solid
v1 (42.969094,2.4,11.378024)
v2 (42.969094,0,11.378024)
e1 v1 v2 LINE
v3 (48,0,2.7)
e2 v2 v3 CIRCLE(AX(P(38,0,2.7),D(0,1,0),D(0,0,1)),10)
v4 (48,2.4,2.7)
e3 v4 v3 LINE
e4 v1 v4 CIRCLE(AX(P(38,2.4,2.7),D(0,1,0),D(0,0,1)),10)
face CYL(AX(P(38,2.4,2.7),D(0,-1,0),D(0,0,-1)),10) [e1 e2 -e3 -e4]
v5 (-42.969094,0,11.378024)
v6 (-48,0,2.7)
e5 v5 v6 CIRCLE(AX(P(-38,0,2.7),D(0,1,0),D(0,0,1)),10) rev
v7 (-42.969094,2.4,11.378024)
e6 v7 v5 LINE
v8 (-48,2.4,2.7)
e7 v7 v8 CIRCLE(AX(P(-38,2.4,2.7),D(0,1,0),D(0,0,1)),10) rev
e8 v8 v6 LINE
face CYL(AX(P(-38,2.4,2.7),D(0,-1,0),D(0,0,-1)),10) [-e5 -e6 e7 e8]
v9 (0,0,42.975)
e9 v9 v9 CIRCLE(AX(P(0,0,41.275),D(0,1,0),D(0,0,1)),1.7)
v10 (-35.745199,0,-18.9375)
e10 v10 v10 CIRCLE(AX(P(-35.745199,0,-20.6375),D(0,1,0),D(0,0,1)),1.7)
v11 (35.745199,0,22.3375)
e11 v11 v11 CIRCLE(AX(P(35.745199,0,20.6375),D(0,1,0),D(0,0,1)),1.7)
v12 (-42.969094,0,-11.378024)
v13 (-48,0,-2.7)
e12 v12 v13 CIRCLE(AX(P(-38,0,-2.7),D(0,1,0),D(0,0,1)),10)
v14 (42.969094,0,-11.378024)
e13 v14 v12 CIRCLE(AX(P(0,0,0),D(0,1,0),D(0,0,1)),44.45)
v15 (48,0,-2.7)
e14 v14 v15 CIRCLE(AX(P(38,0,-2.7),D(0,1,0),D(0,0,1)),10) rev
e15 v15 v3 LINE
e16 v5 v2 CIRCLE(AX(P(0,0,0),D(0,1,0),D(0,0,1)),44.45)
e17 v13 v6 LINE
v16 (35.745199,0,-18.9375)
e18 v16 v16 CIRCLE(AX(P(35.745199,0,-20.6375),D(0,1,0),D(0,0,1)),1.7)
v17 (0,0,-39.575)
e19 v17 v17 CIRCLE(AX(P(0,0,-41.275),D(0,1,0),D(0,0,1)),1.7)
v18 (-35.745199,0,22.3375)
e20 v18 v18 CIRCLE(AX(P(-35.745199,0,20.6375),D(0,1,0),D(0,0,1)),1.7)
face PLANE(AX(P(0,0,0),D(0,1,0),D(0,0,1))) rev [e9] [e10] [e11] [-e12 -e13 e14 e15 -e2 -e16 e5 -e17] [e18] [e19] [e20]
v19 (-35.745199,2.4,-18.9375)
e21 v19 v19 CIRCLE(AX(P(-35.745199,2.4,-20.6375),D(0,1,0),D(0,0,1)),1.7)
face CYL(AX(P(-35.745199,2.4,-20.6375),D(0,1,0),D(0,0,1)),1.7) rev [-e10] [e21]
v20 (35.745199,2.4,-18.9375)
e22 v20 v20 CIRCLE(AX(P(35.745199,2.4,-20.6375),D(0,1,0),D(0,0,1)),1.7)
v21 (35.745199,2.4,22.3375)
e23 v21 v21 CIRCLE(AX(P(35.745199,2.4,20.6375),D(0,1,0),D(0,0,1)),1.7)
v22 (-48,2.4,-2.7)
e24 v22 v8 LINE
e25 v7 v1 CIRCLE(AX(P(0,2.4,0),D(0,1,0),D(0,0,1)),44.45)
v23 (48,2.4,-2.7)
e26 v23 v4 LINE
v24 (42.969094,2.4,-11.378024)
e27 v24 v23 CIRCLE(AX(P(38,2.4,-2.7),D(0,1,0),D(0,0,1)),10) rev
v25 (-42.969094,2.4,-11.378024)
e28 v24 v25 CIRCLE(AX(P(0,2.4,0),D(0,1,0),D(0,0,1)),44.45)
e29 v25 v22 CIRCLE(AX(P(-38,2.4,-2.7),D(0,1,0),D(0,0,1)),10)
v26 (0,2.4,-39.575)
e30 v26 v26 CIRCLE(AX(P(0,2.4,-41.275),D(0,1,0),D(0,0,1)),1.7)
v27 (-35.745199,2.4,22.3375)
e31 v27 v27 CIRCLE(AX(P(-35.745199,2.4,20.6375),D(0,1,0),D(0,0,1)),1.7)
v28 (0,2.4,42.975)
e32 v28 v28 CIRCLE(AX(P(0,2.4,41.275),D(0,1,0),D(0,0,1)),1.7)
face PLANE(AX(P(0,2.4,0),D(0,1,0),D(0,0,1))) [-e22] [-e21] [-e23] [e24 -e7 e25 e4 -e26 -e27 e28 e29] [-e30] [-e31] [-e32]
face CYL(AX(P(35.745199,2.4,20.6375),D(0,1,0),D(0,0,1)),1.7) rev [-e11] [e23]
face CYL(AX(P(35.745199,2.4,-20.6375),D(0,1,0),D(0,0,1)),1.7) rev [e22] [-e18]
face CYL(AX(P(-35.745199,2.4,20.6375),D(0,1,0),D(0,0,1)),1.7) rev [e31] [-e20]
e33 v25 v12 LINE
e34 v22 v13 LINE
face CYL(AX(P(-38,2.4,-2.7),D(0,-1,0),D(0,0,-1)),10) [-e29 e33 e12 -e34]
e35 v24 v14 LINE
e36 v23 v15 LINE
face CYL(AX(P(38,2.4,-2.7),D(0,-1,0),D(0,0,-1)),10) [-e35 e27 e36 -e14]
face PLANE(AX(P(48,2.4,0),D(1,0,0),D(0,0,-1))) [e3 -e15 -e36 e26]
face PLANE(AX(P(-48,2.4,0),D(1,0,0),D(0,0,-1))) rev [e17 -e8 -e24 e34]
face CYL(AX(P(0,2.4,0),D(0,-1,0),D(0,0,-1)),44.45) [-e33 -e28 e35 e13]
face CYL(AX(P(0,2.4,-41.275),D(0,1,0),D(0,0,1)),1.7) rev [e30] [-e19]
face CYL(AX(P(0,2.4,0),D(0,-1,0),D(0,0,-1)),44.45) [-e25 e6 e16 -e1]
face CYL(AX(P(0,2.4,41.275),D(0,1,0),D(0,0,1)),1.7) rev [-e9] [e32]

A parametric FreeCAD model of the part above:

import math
import FreeCAD as App
import Part
import Sketcher
from FreeCAD import Vector

doc = App.newDocument("Part")
body = doc.addObject("PartDesign::Body", "Body")

# Sketch on XZ plane
sketch1 = doc.addObject("Sketcher::SketchObject", "Sketch")
body.addObject(sketch1)
sketch1.AttachmentSupport = (doc.XZ_Plane, [""])
sketch1.MapMode = "FlatFace"
sketch1.addGeometry([
    Part.ArcOfCircle(Part.Circle(Vector(-38, -3, 0), Vector(0, 0, 1), 10), math.radians(180), math.radians(240)),  # 0
    Part.LineSegment(Vector(-48, -3, 0), Vector(-48, 3, 0)),  # 1
    Part.ArcOfCircle(Part.Circle(Vector(-38, 3, 0), Vector(0, 0, 1), 10), math.radians(120), math.radians(180)),  # 2
    Part.ArcOfCircle(Part.Circle(Vector(0, 0, 0), Vector(0, 0, 1), 44), math.radians(15), math.radians(165)),  # 3
    Part.ArcOfCircle(Part.Circle(Vector(38, 3, 0), Vector(0, 0, 1), 10), math.radians(0), math.radians(60)),  # 4
    Part.LineSegment(Vector(48, 3, 0), Vector(48, -3, 0)),  # 5
    Part.ArcOfCircle(Part.Circle(Vector(38, -3, 0), Vector(0, 0, 1), 10), math.radians(-60), math.radians(0)),  # 6
    Part.ArcOfCircle(Part.Circle(Vector(0, 0, 0), Vector(0, 0, 1), 44), math.radians(-165), math.radians(-15)),  # 7
], False)
sketch1.addConstraint([
    Sketcher.Constraint("Tangent", 0, 1, 1, 1),
    Sketcher.Constraint("Tangent", 1, 2, 2, 2),
    Sketcher.Constraint("Coincident", 2, 1, 3, 2),
    Sketcher.Constraint("Coincident", 3, 1, 4, 2),
    Sketcher.Constraint("Tangent", 4, 1, 5, 1),
    Sketcher.Constraint("Tangent", 5, 2, 6, 2),
    Sketcher.Constraint("Coincident", 6, 1, 7, 2),
    Sketcher.Constraint("Coincident", 7, 1, 0, 2),
    Sketcher.Constraint("Vertical", 1),
    Sketcher.Constraint("Vertical", 5),
    Sketcher.Constraint("Coincident", 3, 3, -1, 1),
    Sketcher.Constraint("Coincident", 7, 3, -1, 1),
    Sketcher.Constraint("Equal", 0, 2),
    Sketcher.Constraint("Equal", 2, 4),
    Sketcher.Constraint("Equal", 4, 6),
    Sketcher.Constraint("Equal", 3, 7),
    Sketcher.Constraint("Symmetric", 0, 3, 4, 3, -1, 1),
    Sketcher.Constraint("Horizontal", 2, 3, 4, 3),
    Sketcher.Constraint("Horizontal", 0, 3, 6, 3),
    Sketcher.Constraint("Radius", 0, 10.0),
    Sketcher.Constraint("Radius", 3, 44.45),
    Sketcher.Constraint("DistanceY", 1, 1, 1, 2, 5.4),
    Sketcher.Constraint("DistanceX", 0, 3, -1, 1, 38.0),
])
pad1 = doc.addObject("PartDesign::Pad", "Pad")
body.addObject(pad1)
pad1.Profile = sketch1
pad1.Length = 2.4
pad1.Reversed = True

# Sketch on XZ plane
sketch2 = doc.addObject("Sketcher::SketchObject", "Sketch001")
body.addObject(sketch2)
sketch2.AttachmentSupport = (doc.XZ_Plane, [""])
sketch2.MapMode = "FlatFace"
sketch2.AttachmentOffset = App.Placement(Vector(0, 0, -2.4), App.Rotation())
sketch2.addGeometry(Part.Circle(Vector(0, -41.3, 0), Vector(0, 0, 1), 1.7), False)
sketch2.addConstraint([
    Sketcher.Constraint("PointOnObject", 0, 3, -2),
    Sketcher.Constraint("Diameter", 0, 3.4),
    Sketcher.Constraint("DistanceY", 0, 3, -1, 1, 41.275),
])
doc.recompute()
hole = doc.addObject("PartDesign::Hole", "Hole")
body.addObject(hole)
hole.Profile = sketch2
hole.ThreadType = "None"
hole.Diameter = 3.4
hole.DepthType = "ThroughAll"
hole.Reversed = True
doc.recompute()

polarpattern = doc.addObject("PartDesign::PolarPattern", "PolarPattern")
body.addObject(polarpattern)
polarpattern.Originals = [hole]
polarpattern.Axis = (doc.Y_Axis, [""])
polarpattern.Angle = 360
polarpattern.Occurrences = 6
body.Tip = polarpattern

doc.recompute()
